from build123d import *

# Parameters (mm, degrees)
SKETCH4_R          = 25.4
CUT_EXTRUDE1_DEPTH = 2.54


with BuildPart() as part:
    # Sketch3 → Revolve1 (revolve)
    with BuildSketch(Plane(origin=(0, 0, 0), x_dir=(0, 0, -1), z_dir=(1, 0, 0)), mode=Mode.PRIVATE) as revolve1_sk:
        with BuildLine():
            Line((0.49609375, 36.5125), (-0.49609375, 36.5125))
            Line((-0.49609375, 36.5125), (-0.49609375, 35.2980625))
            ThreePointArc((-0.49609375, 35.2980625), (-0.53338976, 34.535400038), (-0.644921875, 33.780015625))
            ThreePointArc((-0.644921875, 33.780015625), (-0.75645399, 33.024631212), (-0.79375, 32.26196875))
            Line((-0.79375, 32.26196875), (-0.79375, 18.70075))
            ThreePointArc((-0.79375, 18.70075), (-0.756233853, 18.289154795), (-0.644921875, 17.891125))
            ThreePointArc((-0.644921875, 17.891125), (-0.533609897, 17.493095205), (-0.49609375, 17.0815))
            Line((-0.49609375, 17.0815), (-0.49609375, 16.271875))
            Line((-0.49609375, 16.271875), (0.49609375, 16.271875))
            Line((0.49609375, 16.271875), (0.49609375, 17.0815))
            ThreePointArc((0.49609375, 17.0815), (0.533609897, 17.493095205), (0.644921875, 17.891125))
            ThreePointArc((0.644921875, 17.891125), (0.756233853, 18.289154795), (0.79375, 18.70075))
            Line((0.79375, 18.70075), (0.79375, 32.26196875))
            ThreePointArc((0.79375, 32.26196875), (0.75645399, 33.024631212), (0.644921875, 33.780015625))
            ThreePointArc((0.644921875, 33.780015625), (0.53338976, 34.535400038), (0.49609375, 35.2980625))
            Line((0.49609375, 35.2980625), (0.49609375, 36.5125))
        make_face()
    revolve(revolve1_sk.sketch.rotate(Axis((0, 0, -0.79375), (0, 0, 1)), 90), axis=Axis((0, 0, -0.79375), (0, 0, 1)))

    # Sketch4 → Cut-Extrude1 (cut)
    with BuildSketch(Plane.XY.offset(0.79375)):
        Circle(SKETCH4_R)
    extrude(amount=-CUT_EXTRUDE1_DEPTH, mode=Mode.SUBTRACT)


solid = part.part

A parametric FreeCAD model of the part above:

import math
import FreeCAD as App
import Part
import Sketcher
Q = App.Units.Quantity

doc = App.newDocument("Part")
body = doc.addObject("PartDesign::Body", "Body")

# Sketch on YZ plane
sketch1 = body.newObject("Sketcher::SketchObject", "Sketch")
sketch1.AttachmentSupport = (doc.getObject("YZ_Plane"), [""])
sketch1.MapMode = "FlatFace"
sketch1.addGeometry([
    Part.LineSegment(App.Vector(36.5125, -0.496094, 0), App.Vector(36.5125, 0.496094, 0)),  # 0
    Part.LineSegment(App.Vector(36.5125, 0.496094, 0), App.Vector(35.298063, 0.496094, 0)),  # 1
    Part.ArcOfCircle(Part.Circle(App.Vector(35.298063, 8.312547, 0), App.Vector(0, 0, 1), 7.816453), math.radians(-101.198679), math.radians(-90)),  # 2
    Part.ArcOfCircle(Part.Circle(App.Vector(32.261969, -7.022703, 0), App.Vector(0, 0, 1), 7.816453), math.radians(78.801321), math.radians(90)),  # 3
    Part.LineSegment(App.Vector(32.261969, 0.79375, 0), App.Vector(18.70075, 0.79375, 0)),  # 4
    Part.ArcOfCircle(Part.Circle(App.Vector(18.70075, -1.482844, 0), App.Vector(0, 0, 1), 2.276594), math.radians(90), math.radians(110.832057)),  # 5
    Part.ArcOfCircle(Part.Circle(App.Vector(17.0815, 2.772688, 0), App.Vector(0, 0, 1), 2.276594), math.radians(-90), math.radians(-69.167943)),  # 6
    Part.LineSegment(App.Vector(17.0815, 0.496094, 0), App.Vector(16.271875, 0.496094, 0)),  # 7
    Part.LineSegment(App.Vector(16.271875, 0.496094, 0), App.Vector(16.271875, -0.496094, 0)),  # 8
    Part.LineSegment(App.Vector(16.271875, -0.496094, 0), App.Vector(17.0815, -0.496094, 0)),  # 9
    Part.ArcOfCircle(Part.Circle(App.Vector(17.0815, -2.772688, 0), App.Vector(0, 0, 1), 2.276594), math.radians(69.167943), math.radians(90)),  # 10
    Part.ArcOfCircle(Part.Circle(App.Vector(18.70075, 1.482844, 0), App.Vector(0, 0, 1), 2.276594), math.radians(-110.832057), math.radians(-90)),  # 11
    Part.LineSegment(App.Vector(18.70075, -0.79375, 0), App.Vector(32.261969, -0.79375, 0)),  # 12
    Part.ArcOfCircle(Part.Circle(App.Vector(32.261969, 7.022703, 0), App.Vector(0, 0, 1), 7.816453), math.radians(-90), math.radians(-78.801321)),  # 13
    Part.ArcOfCircle(Part.Circle(App.Vector(35.298063, -8.312547, 0), App.Vector(0, 0, 1), 7.816453), math.radians(90), math.radians(101.198679)),  # 14
    Part.LineSegment(App.Vector(35.298063, -0.496094, 0), App.Vector(36.5125, -0.496094, 0)),  # 15
], False)
sketch1.addConstraint([
    Sketcher.Constraint("Coincident", 0, 2, 1, 1),
    Sketcher.Constraint("Tangent", 1, 2, 2, 2),
    Sketcher.Constraint("Tangent", 2, 1, 3, 1),
    Sketcher.Constraint("Tangent", 3, 2, 4, 1),
    Sketcher.Constraint("Tangent", 4, 2, 5, 1),
    Sketcher.Constraint("Tangent", 5, 2, 6, 2),
    Sketcher.Constraint("Tangent", 6, 1, 7, 1),
    Sketcher.Constraint("Coincident", 7, 2, 8, 1),
    Sketcher.Constraint("Coincident", 8, 2, 9, 1),
    Sketcher.Constraint("Tangent", 9, 2, 10, 2),
    Sketcher.Constraint("Tangent", 10, 1, 11, 1),
    Sketcher.Constraint("Tangent", 11, 2, 12, 1),
    Sketcher.Constraint("Tangent", 12, 2, 13, 1),
    Sketcher.Constraint("Tangent", 13, 2, 14, 2),
    Sketcher.Constraint("Tangent", 14, 1, 15, 1),
    Sketcher.Constraint("Coincident", 15, 2, 0, 1),
    Sketcher.Constraint("Vertical", 0),
    Sketcher.Constraint("Horizontal", 1),
    Sketcher.Constraint("Horizontal", 4),
    Sketcher.Constraint("Horizontal", 7),
    Sketcher.Constraint("Vertical", 8),
    Sketcher.Constraint("Horizontal", 9),
    Sketcher.Constraint("Horizontal", 12),
    Sketcher.Constraint("Horizontal", 15),
    Sketcher.Constraint("Equal", 2, 3),
    Sketcher.Constraint("Equal", 5, 6),
    Sketcher.Constraint("Equal", 6, 10),
    Sketcher.Constraint("Equal", 10, 11),
    Sketcher.Constraint("Equal", 3, 13),
    Sketcher.Constraint("Equal", 13, 14),
    Sketcher.Constraint("Symmetric", 6, 3, 10, 3, -1),
    Sketcher.Constraint("Symmetric", 3, 3, 13, 3, -1),
    Sketcher.Constraint("Horizontal", 2, 1, 5, 2),
    Sketcher.Constraint("Horizontal", 10, 1, 13, 2),
    Sketcher.Constraint("DistanceX", -1, 1, 0, 2, Q("1.4375 in")),
    Sketcher.Constraint("DistanceY", -1, 1, 3, 2, Q("0.03125 in")),
    Sketcher.Constraint("DistanceX", -1, 1, 7, 2, Q("0.640625 in")),
    Sketcher.Constraint("DistanceX", -1, 1, 6, 3, Q("0.6725 in")),
    Sketcher.Constraint("Radius", 2, Q("7.816453 mm")),
    Sketcher.Constraint("Radius", 5, Q("2.276594 mm")),
    Sketcher.Constraint("DistanceX", 4, 2, 4, 1, Q("13.561219 mm")),
    Sketcher.Constraint("DistanceX", 1, 2, 1, 1, Q("1.214438 mm")),
])
revolution = body.newObject("PartDesign::Revolution", "Revolution")
revolution.Profile = sketch1
revolution.ReferenceAxis = (sketch1, ["V_Axis"])
revolution.Angle = 360

# Sketch on XY plane
sketch2 = body.newObject("Sketcher::SketchObject", "Sketch001")
sketch2.AttachmentSupport = (doc.getObject("XY_Plane"), [""])
sketch2.MapMode = "FlatFace"
sketch2.AttachmentOffset = App.Placement(App.Vector(0, 0, 0.03125 * 25.4), App.Rotation())
sketch2.addGeometry(Part.Circle(App.Vector(0, 0, 0), App.Vector(0, 0, 1), 25.4), False)
sketch2.addConstraint([
    Sketcher.Constraint("Coincident", 0, 3, -1, 1),
    Sketcher.Constraint("Diameter", 0, Q("2 in")),
])
pocket1 = body.newObject("PartDesign::Pocket", "Pocket")
pocket1.Profile = sketch2
pocket1.Length = Q("0.1 in")

doc.recompute()
